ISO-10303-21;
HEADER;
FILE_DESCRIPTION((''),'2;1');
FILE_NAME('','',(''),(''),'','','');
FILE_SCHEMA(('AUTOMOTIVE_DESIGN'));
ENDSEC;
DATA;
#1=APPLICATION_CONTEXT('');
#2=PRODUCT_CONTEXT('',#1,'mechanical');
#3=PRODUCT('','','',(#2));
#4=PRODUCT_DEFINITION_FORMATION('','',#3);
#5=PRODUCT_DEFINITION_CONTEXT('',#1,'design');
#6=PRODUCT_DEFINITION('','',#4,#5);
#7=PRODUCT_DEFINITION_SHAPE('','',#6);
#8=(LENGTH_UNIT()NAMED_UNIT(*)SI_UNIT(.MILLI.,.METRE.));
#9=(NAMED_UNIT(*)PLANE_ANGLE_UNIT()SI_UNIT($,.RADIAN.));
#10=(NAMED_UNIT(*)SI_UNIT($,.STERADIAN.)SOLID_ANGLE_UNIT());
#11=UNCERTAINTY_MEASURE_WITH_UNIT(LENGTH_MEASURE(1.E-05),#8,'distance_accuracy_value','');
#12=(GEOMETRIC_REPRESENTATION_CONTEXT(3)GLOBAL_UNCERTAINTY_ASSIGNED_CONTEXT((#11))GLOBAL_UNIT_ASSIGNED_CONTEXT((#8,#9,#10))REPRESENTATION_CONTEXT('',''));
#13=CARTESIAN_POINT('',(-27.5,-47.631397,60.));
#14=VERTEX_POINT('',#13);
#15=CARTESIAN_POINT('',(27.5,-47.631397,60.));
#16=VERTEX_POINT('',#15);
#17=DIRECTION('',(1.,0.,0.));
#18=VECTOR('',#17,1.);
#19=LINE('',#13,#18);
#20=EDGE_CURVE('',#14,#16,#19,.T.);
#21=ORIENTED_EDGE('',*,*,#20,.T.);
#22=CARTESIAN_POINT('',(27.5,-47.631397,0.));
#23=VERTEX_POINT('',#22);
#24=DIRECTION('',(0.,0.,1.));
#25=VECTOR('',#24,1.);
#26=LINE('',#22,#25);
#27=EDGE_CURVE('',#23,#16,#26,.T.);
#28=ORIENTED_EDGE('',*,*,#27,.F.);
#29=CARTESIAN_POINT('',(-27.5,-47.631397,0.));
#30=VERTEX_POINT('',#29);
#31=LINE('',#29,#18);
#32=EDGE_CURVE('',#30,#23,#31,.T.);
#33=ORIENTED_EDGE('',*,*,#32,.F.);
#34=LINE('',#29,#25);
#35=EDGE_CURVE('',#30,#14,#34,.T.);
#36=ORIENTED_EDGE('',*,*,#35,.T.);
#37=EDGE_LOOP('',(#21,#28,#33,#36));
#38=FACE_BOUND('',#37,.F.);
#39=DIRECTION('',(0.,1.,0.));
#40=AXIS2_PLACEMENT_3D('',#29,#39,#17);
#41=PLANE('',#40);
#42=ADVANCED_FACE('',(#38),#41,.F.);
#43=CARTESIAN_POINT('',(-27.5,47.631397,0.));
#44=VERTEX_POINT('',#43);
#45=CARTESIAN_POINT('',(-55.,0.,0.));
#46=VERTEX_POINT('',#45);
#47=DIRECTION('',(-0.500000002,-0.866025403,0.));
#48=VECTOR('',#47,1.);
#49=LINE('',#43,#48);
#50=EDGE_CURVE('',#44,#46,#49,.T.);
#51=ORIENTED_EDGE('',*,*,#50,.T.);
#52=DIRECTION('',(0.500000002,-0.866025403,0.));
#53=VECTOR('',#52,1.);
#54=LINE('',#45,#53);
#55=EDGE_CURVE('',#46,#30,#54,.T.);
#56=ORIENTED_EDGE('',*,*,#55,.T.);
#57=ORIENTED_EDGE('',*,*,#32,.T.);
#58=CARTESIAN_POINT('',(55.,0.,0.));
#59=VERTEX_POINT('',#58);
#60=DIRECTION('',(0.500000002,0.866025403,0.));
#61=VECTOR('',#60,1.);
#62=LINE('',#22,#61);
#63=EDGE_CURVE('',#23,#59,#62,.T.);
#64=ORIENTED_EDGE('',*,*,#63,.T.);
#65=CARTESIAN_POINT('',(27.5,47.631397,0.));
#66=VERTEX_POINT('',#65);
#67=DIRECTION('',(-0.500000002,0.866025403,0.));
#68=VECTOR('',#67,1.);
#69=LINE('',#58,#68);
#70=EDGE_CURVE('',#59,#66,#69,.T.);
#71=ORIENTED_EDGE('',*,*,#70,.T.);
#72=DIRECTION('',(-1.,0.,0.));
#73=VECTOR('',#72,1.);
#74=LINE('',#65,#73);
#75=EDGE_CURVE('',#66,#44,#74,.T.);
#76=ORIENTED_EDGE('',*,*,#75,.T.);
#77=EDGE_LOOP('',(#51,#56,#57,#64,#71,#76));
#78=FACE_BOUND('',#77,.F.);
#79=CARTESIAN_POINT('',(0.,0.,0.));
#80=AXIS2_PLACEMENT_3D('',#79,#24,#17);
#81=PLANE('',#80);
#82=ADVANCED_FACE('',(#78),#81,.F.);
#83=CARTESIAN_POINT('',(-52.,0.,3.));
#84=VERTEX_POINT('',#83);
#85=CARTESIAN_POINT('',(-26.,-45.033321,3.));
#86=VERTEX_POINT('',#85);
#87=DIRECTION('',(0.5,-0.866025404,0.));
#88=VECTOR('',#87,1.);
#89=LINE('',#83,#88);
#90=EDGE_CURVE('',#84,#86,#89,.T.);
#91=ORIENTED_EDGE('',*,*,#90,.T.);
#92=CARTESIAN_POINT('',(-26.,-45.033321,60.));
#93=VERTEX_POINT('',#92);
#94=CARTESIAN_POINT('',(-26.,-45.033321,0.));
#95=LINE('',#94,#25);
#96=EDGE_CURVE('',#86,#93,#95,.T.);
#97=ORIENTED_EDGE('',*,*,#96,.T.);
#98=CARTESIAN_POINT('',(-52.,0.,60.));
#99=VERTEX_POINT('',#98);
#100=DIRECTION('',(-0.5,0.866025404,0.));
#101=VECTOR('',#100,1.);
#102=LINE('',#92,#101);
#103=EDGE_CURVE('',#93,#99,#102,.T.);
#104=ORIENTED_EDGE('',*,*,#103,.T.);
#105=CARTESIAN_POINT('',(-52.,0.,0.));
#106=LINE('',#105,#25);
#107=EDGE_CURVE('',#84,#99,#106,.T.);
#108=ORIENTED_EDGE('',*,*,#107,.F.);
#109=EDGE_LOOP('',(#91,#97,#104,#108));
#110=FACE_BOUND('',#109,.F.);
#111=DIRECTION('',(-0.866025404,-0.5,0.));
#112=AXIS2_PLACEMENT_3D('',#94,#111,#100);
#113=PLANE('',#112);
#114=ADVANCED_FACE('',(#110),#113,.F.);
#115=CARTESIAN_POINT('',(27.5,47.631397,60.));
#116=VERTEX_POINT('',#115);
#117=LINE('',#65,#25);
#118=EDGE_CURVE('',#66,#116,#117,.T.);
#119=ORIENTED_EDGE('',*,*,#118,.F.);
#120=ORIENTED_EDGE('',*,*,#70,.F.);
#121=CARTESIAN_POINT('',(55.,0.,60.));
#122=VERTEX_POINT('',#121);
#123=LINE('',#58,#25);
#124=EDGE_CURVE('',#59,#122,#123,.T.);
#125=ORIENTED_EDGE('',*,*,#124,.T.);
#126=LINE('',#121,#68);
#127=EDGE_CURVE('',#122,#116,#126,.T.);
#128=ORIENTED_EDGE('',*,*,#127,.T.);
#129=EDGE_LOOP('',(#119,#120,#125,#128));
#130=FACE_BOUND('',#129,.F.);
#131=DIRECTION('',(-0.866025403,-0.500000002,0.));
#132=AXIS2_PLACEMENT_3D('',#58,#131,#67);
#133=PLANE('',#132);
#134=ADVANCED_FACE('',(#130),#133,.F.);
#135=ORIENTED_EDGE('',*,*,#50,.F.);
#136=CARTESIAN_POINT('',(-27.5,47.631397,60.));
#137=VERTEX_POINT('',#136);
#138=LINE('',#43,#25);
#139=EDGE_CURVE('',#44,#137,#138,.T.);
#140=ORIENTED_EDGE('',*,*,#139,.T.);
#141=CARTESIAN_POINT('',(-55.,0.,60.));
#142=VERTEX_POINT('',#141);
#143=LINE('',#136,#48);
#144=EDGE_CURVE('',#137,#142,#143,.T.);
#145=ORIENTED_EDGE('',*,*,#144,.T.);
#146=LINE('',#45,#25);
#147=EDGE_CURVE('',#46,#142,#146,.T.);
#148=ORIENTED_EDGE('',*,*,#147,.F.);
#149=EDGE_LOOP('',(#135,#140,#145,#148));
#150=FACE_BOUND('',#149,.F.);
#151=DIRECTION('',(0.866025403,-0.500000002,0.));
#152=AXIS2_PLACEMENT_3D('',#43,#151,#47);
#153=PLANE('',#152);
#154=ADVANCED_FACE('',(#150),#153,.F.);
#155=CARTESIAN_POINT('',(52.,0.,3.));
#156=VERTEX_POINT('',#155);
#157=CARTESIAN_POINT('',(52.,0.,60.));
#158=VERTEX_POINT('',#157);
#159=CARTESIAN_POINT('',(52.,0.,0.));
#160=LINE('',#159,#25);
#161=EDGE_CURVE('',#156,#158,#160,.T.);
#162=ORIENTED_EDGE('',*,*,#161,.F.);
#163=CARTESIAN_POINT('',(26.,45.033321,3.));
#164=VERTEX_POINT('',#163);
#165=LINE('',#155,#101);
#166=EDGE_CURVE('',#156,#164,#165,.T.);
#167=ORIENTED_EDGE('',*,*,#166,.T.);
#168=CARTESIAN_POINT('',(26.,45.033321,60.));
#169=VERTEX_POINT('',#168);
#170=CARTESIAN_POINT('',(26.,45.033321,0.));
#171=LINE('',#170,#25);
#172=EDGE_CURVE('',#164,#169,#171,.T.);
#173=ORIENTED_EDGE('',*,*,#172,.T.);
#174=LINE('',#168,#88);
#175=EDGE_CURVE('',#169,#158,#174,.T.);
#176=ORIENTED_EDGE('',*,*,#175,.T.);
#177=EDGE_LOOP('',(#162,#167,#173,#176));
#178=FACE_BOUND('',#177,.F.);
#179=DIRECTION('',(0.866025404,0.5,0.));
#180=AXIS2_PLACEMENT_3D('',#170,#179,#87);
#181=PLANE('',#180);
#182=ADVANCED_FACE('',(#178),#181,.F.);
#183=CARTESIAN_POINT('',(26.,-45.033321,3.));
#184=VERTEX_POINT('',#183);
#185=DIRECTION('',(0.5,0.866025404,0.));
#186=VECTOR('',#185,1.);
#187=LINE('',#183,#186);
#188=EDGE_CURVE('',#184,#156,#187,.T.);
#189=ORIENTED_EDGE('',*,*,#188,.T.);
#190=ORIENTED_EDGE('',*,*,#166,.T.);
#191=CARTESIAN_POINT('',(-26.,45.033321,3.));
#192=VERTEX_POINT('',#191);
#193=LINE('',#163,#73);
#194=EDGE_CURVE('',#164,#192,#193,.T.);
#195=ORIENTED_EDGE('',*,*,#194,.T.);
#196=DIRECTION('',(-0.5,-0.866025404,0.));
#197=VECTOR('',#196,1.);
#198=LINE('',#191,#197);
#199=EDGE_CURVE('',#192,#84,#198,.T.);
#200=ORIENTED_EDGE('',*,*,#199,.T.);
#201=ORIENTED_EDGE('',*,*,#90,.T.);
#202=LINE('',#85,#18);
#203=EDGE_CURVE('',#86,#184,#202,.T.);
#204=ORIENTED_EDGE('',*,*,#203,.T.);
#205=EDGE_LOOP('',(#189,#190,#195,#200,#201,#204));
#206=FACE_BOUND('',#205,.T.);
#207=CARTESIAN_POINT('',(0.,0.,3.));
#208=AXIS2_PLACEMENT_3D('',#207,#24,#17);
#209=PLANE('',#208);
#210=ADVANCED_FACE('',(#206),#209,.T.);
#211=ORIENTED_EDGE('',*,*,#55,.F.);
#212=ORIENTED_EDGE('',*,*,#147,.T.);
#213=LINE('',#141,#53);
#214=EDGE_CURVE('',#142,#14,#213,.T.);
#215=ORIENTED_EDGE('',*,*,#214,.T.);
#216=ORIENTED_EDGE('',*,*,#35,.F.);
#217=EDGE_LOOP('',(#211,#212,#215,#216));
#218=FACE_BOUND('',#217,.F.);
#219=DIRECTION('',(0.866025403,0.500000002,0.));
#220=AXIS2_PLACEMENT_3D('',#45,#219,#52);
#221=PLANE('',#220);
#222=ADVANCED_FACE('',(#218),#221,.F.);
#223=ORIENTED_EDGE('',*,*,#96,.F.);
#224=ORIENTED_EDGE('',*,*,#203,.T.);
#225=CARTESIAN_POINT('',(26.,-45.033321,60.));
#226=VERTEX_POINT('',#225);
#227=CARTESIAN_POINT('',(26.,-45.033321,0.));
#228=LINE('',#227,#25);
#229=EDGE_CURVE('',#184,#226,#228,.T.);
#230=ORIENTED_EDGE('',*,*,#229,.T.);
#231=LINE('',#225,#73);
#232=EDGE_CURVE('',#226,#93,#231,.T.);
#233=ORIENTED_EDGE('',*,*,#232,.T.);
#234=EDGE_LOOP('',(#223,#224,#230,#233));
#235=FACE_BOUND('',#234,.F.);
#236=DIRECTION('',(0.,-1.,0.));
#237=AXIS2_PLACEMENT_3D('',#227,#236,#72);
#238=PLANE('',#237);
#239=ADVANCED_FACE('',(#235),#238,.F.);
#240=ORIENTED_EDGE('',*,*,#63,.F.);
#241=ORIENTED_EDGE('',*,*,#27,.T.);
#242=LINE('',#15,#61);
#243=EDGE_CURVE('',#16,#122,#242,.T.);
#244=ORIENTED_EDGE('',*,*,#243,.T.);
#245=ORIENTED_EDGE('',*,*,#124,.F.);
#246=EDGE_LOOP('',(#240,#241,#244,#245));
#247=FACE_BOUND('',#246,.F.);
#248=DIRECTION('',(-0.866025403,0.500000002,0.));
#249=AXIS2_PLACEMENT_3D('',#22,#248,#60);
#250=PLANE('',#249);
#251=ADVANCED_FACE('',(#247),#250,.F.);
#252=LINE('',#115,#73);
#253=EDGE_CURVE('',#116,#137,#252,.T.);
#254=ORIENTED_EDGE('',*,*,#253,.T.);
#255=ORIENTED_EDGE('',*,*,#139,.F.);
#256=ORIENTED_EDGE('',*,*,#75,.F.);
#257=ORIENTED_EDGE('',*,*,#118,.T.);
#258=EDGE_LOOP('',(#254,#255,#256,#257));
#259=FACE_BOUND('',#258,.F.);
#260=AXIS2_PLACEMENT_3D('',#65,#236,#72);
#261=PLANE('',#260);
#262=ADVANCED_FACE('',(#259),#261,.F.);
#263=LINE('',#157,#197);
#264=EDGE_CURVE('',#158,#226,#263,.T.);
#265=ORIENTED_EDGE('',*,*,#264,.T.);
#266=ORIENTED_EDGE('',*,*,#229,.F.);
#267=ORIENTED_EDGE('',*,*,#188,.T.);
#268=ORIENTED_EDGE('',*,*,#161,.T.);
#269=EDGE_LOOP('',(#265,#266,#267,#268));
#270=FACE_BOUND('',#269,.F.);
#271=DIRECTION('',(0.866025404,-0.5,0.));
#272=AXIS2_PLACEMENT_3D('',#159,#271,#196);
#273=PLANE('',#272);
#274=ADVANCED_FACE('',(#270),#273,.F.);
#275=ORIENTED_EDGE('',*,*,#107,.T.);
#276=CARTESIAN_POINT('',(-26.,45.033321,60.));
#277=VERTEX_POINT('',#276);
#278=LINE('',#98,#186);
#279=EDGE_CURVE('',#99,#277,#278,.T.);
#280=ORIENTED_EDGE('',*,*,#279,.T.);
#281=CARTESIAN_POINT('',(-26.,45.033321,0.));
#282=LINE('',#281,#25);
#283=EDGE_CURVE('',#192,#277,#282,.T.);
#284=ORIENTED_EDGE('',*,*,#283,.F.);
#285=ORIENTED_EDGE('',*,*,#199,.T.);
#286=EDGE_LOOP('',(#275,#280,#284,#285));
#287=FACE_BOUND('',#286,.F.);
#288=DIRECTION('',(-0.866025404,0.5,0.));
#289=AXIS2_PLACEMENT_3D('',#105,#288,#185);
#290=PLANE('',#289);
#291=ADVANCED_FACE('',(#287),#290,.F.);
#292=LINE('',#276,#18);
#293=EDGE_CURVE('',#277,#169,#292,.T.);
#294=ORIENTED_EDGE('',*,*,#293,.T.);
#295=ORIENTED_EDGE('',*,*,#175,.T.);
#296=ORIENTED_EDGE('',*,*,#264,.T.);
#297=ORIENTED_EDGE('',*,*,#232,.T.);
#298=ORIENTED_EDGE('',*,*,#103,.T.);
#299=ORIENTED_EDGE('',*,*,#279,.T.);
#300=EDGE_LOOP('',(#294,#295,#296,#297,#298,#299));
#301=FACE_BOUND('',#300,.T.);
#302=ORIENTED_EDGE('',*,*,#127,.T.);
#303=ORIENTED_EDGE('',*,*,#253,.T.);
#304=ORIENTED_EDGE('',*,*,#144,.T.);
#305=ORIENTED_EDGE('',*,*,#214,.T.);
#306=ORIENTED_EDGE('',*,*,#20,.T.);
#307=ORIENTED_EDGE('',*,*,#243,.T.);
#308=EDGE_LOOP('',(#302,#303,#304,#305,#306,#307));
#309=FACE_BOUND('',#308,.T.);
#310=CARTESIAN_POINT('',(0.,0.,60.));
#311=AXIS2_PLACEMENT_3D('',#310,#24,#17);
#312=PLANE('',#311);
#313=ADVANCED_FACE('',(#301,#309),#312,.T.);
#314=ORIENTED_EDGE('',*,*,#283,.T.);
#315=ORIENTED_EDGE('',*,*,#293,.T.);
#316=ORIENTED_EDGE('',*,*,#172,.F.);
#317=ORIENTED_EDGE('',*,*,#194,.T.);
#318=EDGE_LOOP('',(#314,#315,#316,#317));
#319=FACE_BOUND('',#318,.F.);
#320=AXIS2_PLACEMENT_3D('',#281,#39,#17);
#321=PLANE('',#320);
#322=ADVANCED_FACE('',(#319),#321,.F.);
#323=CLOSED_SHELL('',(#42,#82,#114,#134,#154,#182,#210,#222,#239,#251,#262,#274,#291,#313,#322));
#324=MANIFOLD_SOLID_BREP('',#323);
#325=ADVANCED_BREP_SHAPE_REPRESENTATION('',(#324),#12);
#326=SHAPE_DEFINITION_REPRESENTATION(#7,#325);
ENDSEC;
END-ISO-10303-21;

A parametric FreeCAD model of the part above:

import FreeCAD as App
import Part
import Sketcher
Q = App.Units.Quantity


def add_polygon(sketch, points):
    """Adds a closed chain of lines whose ends are joined by coincident constraints."""
    first, n = sketch.GeometryCount, len(points)
    for a, b in zip(points, points[1:] + points[:1]):
        sketch.addGeometry(Part.LineSegment(App.Vector(*a, 0), App.Vector(*b, 0)), False)
    for i in range(n):
        sketch.addConstraint(Sketcher.Constraint("Coincident", first + i, 2, first + (i + 1) % n, 1))

doc = App.newDocument("Part")
body = doc.addObject("PartDesign::Body", "Body")

# Sketch on XY plane
sketch1 = doc.addObject("Sketcher::SketchObject", "Sketch")
body.addObject(sketch1)
sketch1.AttachmentSupport = (doc.XY_Plane, [""])
sketch1.MapMode = "FlatFace"
add_polygon(sketch1, [(28, -48), (55, 0), (28, 48), (-28, 48), (-55, 0), (-28, -48)])  # lines 0-5
add_polygon(sketch1, [(-26, 45), (26, 45), (52, 0), (26, -45), (-26, -45), (-52, 0)])  # lines 6-11
sketch1.addConstraint([
    Sketcher.Constraint("Horizontal", 2),
    Sketcher.Constraint("Horizontal", 5),
    Sketcher.Constraint("Horizontal", 6),
    Sketcher.Constraint("Horizontal", 9),
    Sketcher.Constraint("Symmetric", 0, 2, 3, 2, -1, 1),
    Sketcher.Constraint("Symmetric", 1, 2, 4, 2, -1, 1),
    Sketcher.Constraint("Symmetric", 6, 2, 9, 2, -1, 1),
    Sketcher.Constraint("Symmetric", 7, 2, 10, 2, -1, 1),
    Sketcher.Constraint("PointOnObject", 0, 2, -1),
    Sketcher.Constraint("PointOnObject", 7, 2, -1),
    Sketcher.Constraint("Parallel", 0, 3),
    Sketcher.Constraint("Parallel", 4, 7),
    Sketcher.Constraint("Parallel", 3, 8),
    Sketcher.Constraint("Parallel", 8, 11),
    Sketcher.Constraint("Vertical", 2, 2, 4, 2),
    Sketcher.Constraint("DistanceX", 2, 2, 2, 1, 55.0),
    Sketcher.Constraint("DistanceX", 6, 1, 6, 2, 52.0),
    Sketcher.Constraint("Angle", 0, Q("60 deg")),
    Sketcher.Constraint("Distance", 0, 55.0),
    Sketcher.Constraint("Distance", 7, 52.0),
])
pad1 = doc.addObject("PartDesign::Pad", "Pad")
body.addObject(pad1)
pad1.Profile = sketch1
pad1.Length = 60

# Sketch on XY plane
sketch2 = doc.addObject("Sketcher::SketchObject", "Sketch001")
body.addObject(sketch2)
sketch2.AttachmentSupport = (doc.XY_Plane, [""])
sketch2.MapMode = "FlatFace"
add_polygon(sketch2, [(26, -45), (52, 0), (26, 45), (-26, 45), (-52, 0), (-26, -45)])  # lines 0-5
sketch2.addConstraint([
    Sketcher.Constraint("Horizontal", 2),
    Sketcher.Constraint("Horizontal", 5),
    Sketcher.Constraint("Symmetric", 0, 2, 3, 2, -1, 1),
    Sketcher.Constraint("Symmetric", 1, 2, 4, 2, -1, 1),
    Sketcher.Constraint("PointOnObject", 0, 2, -1),
    Sketcher.Constraint("Parallel", 0, 3),
    Sketcher.Constraint("Vertical", 2, 2, 4, 2),
    Sketcher.Constraint("DistanceX", 2, 2, 2, 1, 52.0),
    Sketcher.Constraint("Angle", 0, Q("60 deg")),
    Sketcher.Constraint("Distance", 0, 52.0),
])
pad2 = doc.addObject("PartDesign::Pad", "Pad001")
body.addObject(pad2)
pad2.Profile = sketch2
pad2.Length = 3

doc.recompute()
